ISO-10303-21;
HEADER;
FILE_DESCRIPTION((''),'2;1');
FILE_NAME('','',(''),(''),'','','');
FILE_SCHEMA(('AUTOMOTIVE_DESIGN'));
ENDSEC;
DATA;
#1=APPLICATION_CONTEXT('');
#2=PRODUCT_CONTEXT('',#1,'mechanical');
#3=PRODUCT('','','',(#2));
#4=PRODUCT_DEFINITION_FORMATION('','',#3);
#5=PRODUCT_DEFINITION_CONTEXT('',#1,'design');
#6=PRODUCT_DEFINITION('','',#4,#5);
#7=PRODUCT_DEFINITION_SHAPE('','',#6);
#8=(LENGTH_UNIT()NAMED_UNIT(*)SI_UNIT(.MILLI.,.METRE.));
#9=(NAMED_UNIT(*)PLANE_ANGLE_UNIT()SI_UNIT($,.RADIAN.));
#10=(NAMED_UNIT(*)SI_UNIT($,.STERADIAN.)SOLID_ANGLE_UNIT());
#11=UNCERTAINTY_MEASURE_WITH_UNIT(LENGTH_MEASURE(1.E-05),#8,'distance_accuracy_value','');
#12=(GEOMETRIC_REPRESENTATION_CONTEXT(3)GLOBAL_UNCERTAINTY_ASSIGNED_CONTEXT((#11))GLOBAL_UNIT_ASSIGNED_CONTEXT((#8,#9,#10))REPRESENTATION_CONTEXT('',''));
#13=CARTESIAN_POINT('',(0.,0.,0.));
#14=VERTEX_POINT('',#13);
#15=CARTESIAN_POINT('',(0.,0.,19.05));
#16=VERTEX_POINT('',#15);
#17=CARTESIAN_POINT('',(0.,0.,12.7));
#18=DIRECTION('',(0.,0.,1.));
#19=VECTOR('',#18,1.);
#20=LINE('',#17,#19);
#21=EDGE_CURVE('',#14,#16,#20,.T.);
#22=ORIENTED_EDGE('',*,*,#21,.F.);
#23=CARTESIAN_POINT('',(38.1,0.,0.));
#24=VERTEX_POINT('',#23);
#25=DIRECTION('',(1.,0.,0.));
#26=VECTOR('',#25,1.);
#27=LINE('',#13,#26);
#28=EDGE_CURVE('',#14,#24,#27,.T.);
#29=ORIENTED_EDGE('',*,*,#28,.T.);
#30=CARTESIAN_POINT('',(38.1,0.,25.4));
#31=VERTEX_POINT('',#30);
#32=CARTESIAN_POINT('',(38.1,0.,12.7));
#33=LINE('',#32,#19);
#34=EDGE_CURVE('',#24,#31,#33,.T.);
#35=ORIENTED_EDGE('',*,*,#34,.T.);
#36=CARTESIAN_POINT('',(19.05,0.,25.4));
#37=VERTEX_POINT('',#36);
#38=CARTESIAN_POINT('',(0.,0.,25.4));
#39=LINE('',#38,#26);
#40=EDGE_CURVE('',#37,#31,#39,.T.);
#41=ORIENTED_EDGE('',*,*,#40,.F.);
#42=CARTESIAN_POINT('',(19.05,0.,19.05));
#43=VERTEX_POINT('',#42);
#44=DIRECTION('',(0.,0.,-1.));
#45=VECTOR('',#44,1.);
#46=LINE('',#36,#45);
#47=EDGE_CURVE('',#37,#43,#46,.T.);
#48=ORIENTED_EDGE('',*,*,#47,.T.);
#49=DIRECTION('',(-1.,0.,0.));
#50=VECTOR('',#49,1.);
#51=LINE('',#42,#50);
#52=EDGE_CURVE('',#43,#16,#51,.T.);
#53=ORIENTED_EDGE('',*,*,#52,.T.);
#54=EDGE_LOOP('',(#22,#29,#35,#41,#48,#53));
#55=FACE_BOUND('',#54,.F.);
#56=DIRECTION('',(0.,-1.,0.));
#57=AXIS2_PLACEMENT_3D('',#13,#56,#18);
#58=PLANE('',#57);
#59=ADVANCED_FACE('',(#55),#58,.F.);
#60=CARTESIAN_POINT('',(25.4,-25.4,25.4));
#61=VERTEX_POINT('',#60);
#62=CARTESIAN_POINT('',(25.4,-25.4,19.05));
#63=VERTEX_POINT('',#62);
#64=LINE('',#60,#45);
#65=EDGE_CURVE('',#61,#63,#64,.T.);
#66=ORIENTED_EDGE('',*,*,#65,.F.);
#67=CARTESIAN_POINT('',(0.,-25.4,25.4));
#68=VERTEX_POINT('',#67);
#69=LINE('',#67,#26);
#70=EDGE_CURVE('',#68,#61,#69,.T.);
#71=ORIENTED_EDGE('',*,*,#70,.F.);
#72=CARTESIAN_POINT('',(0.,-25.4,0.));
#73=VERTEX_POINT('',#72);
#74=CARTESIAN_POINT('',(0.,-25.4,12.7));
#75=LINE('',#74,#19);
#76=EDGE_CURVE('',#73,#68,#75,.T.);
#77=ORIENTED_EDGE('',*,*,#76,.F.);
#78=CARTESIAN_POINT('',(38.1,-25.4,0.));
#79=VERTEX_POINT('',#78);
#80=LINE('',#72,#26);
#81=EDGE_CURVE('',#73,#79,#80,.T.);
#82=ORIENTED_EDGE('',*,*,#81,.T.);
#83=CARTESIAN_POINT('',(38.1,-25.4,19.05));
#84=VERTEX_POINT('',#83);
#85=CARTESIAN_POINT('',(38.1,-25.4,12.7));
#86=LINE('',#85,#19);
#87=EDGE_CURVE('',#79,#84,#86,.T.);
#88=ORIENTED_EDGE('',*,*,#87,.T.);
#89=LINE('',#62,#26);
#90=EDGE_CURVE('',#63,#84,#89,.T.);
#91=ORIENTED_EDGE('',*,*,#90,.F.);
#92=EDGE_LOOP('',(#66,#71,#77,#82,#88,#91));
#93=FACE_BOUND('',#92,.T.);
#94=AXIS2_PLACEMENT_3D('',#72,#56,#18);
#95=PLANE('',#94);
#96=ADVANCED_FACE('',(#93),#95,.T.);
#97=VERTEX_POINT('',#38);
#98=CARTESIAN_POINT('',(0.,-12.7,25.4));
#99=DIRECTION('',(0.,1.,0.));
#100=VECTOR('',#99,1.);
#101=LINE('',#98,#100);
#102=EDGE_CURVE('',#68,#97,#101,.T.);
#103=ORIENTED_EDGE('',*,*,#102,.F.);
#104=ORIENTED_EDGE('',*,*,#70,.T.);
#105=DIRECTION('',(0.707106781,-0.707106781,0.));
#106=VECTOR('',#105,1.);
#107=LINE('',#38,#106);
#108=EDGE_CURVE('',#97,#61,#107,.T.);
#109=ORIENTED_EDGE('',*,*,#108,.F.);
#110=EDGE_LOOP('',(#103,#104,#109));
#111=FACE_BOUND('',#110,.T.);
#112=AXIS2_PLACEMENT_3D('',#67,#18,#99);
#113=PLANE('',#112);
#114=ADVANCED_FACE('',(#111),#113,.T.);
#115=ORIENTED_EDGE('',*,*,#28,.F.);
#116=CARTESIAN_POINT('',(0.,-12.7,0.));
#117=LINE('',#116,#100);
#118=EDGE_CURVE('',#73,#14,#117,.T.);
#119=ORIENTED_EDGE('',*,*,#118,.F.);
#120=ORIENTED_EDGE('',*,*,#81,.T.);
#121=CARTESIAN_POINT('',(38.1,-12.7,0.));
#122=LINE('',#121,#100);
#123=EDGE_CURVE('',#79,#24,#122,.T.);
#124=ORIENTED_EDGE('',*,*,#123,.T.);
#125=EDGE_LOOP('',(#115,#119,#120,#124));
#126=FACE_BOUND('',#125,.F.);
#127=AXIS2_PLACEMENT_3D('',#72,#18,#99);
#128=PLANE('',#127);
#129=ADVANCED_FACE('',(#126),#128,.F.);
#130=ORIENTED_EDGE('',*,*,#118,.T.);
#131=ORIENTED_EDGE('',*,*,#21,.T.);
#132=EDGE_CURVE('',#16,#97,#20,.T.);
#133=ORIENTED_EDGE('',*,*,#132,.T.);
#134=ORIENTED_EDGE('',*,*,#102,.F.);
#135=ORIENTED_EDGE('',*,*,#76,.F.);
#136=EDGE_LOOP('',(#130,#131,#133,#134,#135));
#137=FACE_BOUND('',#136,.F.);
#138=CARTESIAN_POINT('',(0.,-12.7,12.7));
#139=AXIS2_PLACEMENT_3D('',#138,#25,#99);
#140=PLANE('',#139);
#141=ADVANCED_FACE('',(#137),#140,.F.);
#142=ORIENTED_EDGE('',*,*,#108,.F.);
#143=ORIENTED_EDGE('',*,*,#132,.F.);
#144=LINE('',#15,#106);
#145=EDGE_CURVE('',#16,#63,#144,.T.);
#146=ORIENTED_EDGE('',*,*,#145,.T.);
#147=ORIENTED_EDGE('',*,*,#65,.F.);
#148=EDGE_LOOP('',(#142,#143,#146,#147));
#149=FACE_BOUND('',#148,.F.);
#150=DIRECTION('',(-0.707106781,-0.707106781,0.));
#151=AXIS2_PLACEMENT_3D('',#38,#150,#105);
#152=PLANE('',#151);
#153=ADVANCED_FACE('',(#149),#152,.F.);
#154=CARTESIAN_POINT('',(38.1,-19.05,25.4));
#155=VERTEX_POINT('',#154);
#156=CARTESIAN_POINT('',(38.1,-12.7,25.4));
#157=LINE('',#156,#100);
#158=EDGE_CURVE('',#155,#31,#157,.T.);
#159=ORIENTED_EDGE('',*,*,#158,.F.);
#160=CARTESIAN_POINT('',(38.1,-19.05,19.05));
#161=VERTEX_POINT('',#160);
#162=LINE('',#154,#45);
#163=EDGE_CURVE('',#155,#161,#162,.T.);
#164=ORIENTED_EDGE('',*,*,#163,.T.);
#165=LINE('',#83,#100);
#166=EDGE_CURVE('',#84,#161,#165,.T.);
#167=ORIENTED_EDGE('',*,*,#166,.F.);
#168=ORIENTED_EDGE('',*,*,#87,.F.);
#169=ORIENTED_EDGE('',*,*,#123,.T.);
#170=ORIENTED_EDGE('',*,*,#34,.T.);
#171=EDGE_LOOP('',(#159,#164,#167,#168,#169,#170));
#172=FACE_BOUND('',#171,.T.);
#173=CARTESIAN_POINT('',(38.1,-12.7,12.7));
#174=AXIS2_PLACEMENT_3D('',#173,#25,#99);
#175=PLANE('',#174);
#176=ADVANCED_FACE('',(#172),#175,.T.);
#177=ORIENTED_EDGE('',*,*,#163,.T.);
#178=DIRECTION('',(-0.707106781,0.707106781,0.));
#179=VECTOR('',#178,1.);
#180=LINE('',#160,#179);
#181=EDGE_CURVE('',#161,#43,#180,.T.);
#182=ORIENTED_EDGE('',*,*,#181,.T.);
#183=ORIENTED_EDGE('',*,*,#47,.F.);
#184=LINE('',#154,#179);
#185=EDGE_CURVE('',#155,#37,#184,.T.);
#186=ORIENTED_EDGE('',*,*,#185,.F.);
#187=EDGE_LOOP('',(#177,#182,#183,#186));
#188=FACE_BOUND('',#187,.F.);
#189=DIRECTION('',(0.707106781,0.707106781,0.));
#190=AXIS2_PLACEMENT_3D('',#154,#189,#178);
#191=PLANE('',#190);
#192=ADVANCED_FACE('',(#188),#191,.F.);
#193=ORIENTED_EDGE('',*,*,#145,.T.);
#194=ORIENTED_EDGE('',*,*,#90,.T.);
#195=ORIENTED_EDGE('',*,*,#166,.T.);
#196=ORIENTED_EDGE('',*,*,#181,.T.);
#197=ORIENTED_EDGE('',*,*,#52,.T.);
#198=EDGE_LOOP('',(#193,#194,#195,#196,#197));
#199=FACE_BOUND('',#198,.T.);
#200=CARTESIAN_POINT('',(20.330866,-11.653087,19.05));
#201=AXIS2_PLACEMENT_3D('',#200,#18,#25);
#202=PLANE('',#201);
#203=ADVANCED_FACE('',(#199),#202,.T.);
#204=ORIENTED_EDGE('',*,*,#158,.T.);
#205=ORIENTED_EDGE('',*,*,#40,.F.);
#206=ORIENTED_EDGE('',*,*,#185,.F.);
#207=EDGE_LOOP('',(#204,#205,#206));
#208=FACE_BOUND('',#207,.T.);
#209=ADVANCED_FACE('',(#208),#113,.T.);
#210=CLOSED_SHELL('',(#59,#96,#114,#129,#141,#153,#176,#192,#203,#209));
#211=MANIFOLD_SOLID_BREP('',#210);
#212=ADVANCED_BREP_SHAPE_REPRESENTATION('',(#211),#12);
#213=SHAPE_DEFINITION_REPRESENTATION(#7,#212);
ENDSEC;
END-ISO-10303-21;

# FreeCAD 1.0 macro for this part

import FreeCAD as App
import Part
import Sketcher

V = App.Vector
Q = App.Units.Quantity

doc = App.newDocument("Part")
body = doc.addObject("PartDesign::Body", "Body")

# Sketch on YZ plane
sketch1 = doc.addObject("Sketcher::SketchObject", "Sketch")
body.addObject(sketch1)
sketch1.AttachmentSupport = (doc.YZ_Plane, [""])
sketch1.MapMode = "FlatFace"
sketch1.addGeometry([
    Part.LineSegment(V(-25, 25, 0), V(-25, 0, 0)),
    Part.LineSegment(V(-25, 0, 0), V(0, 0, 0)),
    Part.LineSegment(V(0, 0, 0), V(0, 25, 0)),
    Part.LineSegment(V(0, 25, 0), V(-25, 25, 0)),
], False)
sketch1.addConstraint([
    Sketcher.Constraint("Coincident", 0, 2, 1, 1),
    Sketcher.Constraint("Coincident", 1, 2, 2, 1),
    Sketcher.Constraint("Coincident", 2, 2, 3, 1),
    Sketcher.Constraint("Coincident", 3, 2, 0, 1),
    Sketcher.Constraint("Vertical", 0),
    Sketcher.Constraint("Horizontal", 1),
    Sketcher.Constraint("Vertical", 2),
    Sketcher.Constraint("Horizontal", 3),
    Sketcher.Constraint("Coincident", 1, 2, -1, 1),
    Sketcher.Constraint("Equal", 3, 0),
    Sketcher.Constraint("DistanceX", 1, 1, 1, 2, Q("1 in")),
])
pad1 = doc.addObject("PartDesign::Pad", "Pad")
body.addObject(pad1)
pad1.Profile = sketch1
pad1.Length = Q("1.5 in")

# Sketch on XY plane
sketch2 = doc.addObject("Sketcher::SketchObject", "Sketch001")
body.addObject(sketch2)
sketch2.AttachmentSupport = (doc.XY_Plane, [""])
sketch2.MapMode = "FlatFace"
sketch2.AttachmentOffset = App.Placement(V(0, 0, 1 * 25.4), App.Rotation())
sketch2.addGeometry([
    Part.LineSegment(V(19, 0, 0), V(0, 0, 0)),  # 0
    Part.LineSegment(V(0, 0, 0), V(25, -25, 0)),  # 1
    Part.LineSegment(V(25, -25, 0), V(38, -25, 0)),  # 2
    Part.LineSegment(V(38, -25, 0), V(38, -19, 0)),  # 3
    Part.LineSegment(V(38, -19, 0), V(19, 0, 0)),  # 4
], False)
sketch2.addConstraint([
    Sketcher.Constraint("Coincident", 0, 2, 1, 1),
    Sketcher.Constraint("Coincident", 1, 2, 2, 1),
    Sketcher.Constraint("Coincident", 2, 2, 3, 1),
    Sketcher.Constraint("Coincident", 3, 2, 4, 1),
    Sketcher.Constraint("Coincident", 4, 2, 0, 1),
    Sketcher.Constraint("Horizontal", 0),
    Sketcher.Constraint("Horizontal", 2),
    Sketcher.Constraint("Vertical", 3),
    Sketcher.Constraint("Coincident", 0, 2, -1, 1),
    Sketcher.Constraint("Parallel", 1, 4),
    Sketcher.Constraint("DistanceX", 2, 1, 2, 2, Q("0.5 in")),
    Sketcher.Constraint("DistanceX", -1, 1, 1, 2, Q("1 in")),
    Sketcher.Constraint("DistanceY", 1, 2, -1, 1, Q("1 in")),
    Sketcher.Constraint("DistanceX", 0, 2, 0, 1, Q("0.75 in")),
])
pocket1 = doc.addObject("PartDesign::Pocket", "Pocket")
body.addObject(pocket1)
pocket1.Profile = sketch2
pocket1.Length = Q("0.25 in")

doc.recompute()
